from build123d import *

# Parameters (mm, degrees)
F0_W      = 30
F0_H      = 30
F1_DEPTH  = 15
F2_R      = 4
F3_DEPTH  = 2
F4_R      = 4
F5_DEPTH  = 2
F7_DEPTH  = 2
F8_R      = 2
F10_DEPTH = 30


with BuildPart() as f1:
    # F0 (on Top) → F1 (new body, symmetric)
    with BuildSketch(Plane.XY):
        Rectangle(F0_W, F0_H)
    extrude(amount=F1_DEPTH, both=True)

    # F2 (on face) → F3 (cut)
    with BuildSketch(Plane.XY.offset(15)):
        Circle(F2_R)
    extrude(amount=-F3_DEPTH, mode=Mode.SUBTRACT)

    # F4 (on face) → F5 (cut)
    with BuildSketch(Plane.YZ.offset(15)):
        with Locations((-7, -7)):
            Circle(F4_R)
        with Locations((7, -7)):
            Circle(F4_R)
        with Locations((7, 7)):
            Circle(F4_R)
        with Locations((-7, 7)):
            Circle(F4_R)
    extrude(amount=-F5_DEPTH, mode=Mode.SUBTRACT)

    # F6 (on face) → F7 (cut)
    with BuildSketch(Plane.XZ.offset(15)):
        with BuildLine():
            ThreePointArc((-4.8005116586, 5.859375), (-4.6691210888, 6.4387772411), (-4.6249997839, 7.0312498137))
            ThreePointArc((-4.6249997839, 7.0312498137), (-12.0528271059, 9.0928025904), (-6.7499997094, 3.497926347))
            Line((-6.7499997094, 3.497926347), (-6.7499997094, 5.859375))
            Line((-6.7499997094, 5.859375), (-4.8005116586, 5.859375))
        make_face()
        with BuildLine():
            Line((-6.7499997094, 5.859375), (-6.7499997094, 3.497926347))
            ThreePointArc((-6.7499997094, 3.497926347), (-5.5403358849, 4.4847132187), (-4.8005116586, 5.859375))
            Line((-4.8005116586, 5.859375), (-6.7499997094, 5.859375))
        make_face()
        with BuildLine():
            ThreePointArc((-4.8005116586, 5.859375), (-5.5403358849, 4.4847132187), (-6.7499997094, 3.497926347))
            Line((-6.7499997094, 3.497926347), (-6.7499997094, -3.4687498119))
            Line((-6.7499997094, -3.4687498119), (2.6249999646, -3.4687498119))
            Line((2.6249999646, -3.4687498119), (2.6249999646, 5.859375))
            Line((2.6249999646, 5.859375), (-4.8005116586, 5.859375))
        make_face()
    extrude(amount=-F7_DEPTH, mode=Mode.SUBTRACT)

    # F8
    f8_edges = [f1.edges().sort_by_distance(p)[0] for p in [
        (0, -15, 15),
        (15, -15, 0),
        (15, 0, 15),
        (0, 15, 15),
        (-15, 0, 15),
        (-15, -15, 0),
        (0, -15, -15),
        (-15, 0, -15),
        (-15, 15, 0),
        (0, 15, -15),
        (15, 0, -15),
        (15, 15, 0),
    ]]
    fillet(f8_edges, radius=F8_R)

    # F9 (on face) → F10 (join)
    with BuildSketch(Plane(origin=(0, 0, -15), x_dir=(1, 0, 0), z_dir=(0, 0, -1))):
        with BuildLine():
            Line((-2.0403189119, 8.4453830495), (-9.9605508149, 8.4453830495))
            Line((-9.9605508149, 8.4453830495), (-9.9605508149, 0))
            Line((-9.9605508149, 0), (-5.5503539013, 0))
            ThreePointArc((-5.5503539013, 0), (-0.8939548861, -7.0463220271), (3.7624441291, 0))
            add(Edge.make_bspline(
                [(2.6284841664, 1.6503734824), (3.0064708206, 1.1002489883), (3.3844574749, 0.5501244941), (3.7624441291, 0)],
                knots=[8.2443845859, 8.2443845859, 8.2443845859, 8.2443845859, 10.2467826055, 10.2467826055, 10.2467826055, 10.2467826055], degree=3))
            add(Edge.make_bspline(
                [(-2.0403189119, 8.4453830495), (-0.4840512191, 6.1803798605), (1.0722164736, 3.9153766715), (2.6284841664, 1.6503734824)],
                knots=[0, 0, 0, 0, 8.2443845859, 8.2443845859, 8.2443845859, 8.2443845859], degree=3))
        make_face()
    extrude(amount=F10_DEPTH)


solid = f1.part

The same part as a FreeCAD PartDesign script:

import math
import FreeCAD as App
import Part
import Sketcher

V = App.Vector


def edges_at(feature, points):
    """Names of the edges that pass closest to the given points."""
    edges = feature.Shape.Edges
    near = lambda p: min(range(len(edges)), key=lambda i: edges[i].distToShape(Part.Vertex(*p))[0])
    return sorted({f"Edge{near(p) + 1}" for p in points})


def add_polygon(sketch, points):
    """Adds a closed chain of lines whose ends are joined by coincident constraints."""
    first, n = sketch.GeometryCount, len(points)
    for a, b in zip(points, points[1:] + points[:1]):
        sketch.addGeometry(Part.LineSegment(App.Vector(*a, 0), App.Vector(*b, 0)), False)
    for i in range(n):
        sketch.addConstraint(Sketcher.Constraint("Coincident", first + i, 2, first + (i + 1) % n, 1))

doc = App.newDocument("Part")
body = doc.addObject("PartDesign::Body", "Body")

# Sketch on XY plane
sketch1 = doc.addObject("Sketcher::SketchObject", "Sketch")
body.addObject(sketch1)
sketch1.AttachmentSupport = (doc.XY_Plane, [""])
sketch1.MapMode = "FlatFace"
add_polygon(sketch1, [(-15, 15), (-15, -15), (15, -15), (15, 15)])  # lines 0-3
sketch1.addConstraint([
    Sketcher.Constraint("Vertical", 0),
    Sketcher.Constraint("Horizontal", 1),
    Sketcher.Constraint("Vertical", 2),
    Sketcher.Constraint("Horizontal", 3),
    Sketcher.Constraint("Symmetric", 0, 2, 2, 2, -1, 1),
    Sketcher.Constraint("Equal", 3, 0),
    Sketcher.Constraint("DistanceX", 1, 1, 1, 2, 30.0),
])
pad1 = doc.addObject("PartDesign::Pad", "Pad")
body.addObject(pad1)
pad1.Profile = sketch1
pad1.Length = 30
pad1.Midplane = True

# Sketch on XY plane
sketch2 = doc.addObject("Sketcher::SketchObject", "Sketch001")
body.addObject(sketch2)
sketch2.AttachmentSupport = (doc.XY_Plane, [""])
sketch2.MapMode = "FlatFace"
sketch2.AttachmentOffset = App.Placement(V(0, 0, 15), App.Rotation())
sketch2.addGeometry(Part.Circle(V(0, 0, 0), V(0, 0, 1), 4), False)
sketch2.addConstraint([
    Sketcher.Constraint("Coincident", 0, 3, -1, 1),
    Sketcher.Constraint("Diameter", 0, 8.0),
])
pocket1 = doc.addObject("PartDesign::Pocket", "Pocket")
body.addObject(pocket1)
pocket1.Profile = sketch2
pocket1.Length = 2

# Sketch on YZ plane
sketch3 = doc.addObject("Sketcher::SketchObject", "Sketch002")
body.addObject(sketch3)
sketch3.AttachmentSupport = (doc.YZ_Plane, [""])
sketch3.MapMode = "FlatFace"
sketch3.AttachmentOffset = App.Placement(V(0, 0, 15), App.Rotation())
sketch3.addGeometry([
    Part.Circle(V(-7, -7, 0), V(0, 0, 1), 4),
    Part.Circle(V(7, -7, 0), V(0, 0, 1), 4),
    Part.Circle(V(7, 7, 0), V(0, 0, 1), 4),
    Part.Circle(V(-7, 7, 0), V(0, 0, 1), 4),
], False)
sketch3.addConstraint([
    Sketcher.Constraint("Equal", 0, 1),
    Sketcher.Constraint("Equal", 1, 2),
    Sketcher.Constraint("Equal", 2, 3),
    Sketcher.Constraint("Symmetric", 0, 3, 2, 3, -1, 1),
    Sketcher.Constraint("Symmetric", 1, 3, 3, 3, -1, 1),
    Sketcher.Constraint("Symmetric", 0, 3, 1, 3, -2),
    Sketcher.Constraint("Diameter", 0, 8.0),
    Sketcher.Constraint("DistanceX", 0, 3, -1, 1, 7.0),
    Sketcher.Constraint("DistanceY", 0, 3, -1, 1, 7.0),
])
pocket2 = doc.addObject("PartDesign::Pocket", "Pocket001")
body.addObject(pocket2)
pocket2.Profile = sketch3
pocket2.Length = 2

# Sketch on XZ plane
sketch4 = doc.addObject("Sketcher::SketchObject", "Sketch003")
body.addObject(sketch4)
sketch4.AttachmentSupport = (doc.XZ_Plane, [""])
sketch4.MapMode = "FlatFace"
sketch4.AttachmentOffset = App.Placement(V(0, 0, 15), App.Rotation())
sketch4.addGeometry([
    Part.ArcOfCircle(Part.Circle(V(-8.6, 7, 0), V(0, 0, 1), 4), math.radians(-17.04), math.radians(0)),  # 0
    Part.ArcOfCircle(Part.Circle(V(-8.6, 7, 0), V(0, 0, 1), 4), math.radians(0), math.radians(298)),  # 1
    Part.LineSegment(V(-6.7, 3.5, 0), V(-6.7, -3.5, 0)),  # 2
    Part.LineSegment(V(-6.7, -3.5, 0), V(2.6, -3.5, 0)),  # 3
    Part.LineSegment(V(2.6, -3.5, 0), V(2.6, 5.9, 0)),  # 4
    Part.LineSegment(V(2.6, 5.9, 0), V(-4.8, 5.9, 0)),  # 5
], False)
sketch4.addConstraint([
    Sketcher.Constraint("Tangent", 0, 2, 1, 1),
    Sketcher.Constraint("Coincident", 1, 2, 2, 1),
    Sketcher.Constraint("Coincident", 2, 2, 3, 1),
    Sketcher.Constraint("Coincident", 3, 2, 4, 1),
    Sketcher.Constraint("Coincident", 4, 2, 5, 1),
    Sketcher.Constraint("Coincident", 5, 2, 0, 1),
    Sketcher.Constraint("Vertical", 2),
    Sketcher.Constraint("Horizontal", 3),
    Sketcher.Constraint("Vertical", 4),
    Sketcher.Constraint("Horizontal", 5),
    Sketcher.Constraint("Equal", 0, 1),
    Sketcher.Constraint("Horizontal", 1, 3, 0, 2),
    Sketcher.Constraint("Radius", 0, 4.0),
    Sketcher.Constraint("DistanceY", 2, 2, 1, 3, 10.5),
    Sketcher.Constraint("DistanceX", 3, 1, 3, 2, 9.375),
    Sketcher.Constraint("DistanceX", 1, 2, -1, 1, 6.75),
    Sketcher.Constraint("DistanceX", 0, 2, 3, 2, 7.25),
    Sketcher.Constraint("DistanceX", 5, 2, 5, 1, 7.425512),
    Sketcher.Constraint("DistanceY", -1, 1, 0, 3, 7.03125),
])
pocket3 = doc.addObject("PartDesign::Pocket", "Pocket002")
body.addObject(pocket3)
pocket3.Profile = sketch4
pocket3.Length = 2
doc.recompute()

fillet = doc.addObject("PartDesign::Fillet", "Fillet")
body.addObject(fillet)
fillet.Base = (pocket3, edges_at(pocket3, [
    (0, -15, 15),
    (15, -15, 0),
    (15, 0, 15),
    (0, 15, 15),
    (-15, 0, 15),
    (-15, -15, 0),
    (0, -15, -15),
    (-15, 0, -15),
    (-15, 15, 0),
    (0, 15, -15),
    (15, 0, -15),
    (15, 15, 0),
]))
fillet.Radius = 2

# Sketch on XY plane
sketch5 = doc.addObject("Sketcher::SketchObject", "Sketch004")
body.addObject(sketch5)
sketch5.AttachmentSupport = (doc.XY_Plane, [""])
sketch5.MapMode = "FlatFace"
sketch5.AttachmentOffset = App.Placement(V(0, 0, -15), App.Rotation())
sketch5.addGeometry([
    Part.LineSegment(V(-2.040319, -8.445383, 0), V(-9.960551, -8.445383, 0)),  # 0
    Part.LineSegment(V(-9.960551, -8.445383, 0), V(-9.960551, 0, 0)),  # 1
    Part.LineSegment(V(-9.960551, 0, 0), V(-5.550354, 0, 0)),  # 2
    Part.ArcOfCircle(Part.Circle(V(-0.893955, 1.984624, 0), V(0, 0, 1), 5.061698), math.radians(-23.0844), math.radians(203.0844)),  # 3
    Part.BSplineCurve([V(2.628484, -1.650373, 0), V(3.006471, -1.100249, 0), V(3.384457, -0.550124, 0), V(3.762444, 0, 0)], [4, 4], [8.244384586, 10.246782605], False, 3, [1, 1, 1, 1], False),  # 4
    Part.BSplineCurve([V(-2.040319, -8.445383, 0), V(-0.484051, -6.18038, 0), V(1.072216, -3.915377, 0), V(2.628484, -1.650373, 0)], [4, 4], [0, 8.244384586], False, 3, [1, 1, 1, 1], False),  # 5
], False)
sketch5.addConstraint([
    Sketcher.Constraint("Block", 4),
    Sketcher.Constraint("Block", 5),
    Sketcher.Constraint("Coincident", 0, 2, 1, 1),
    Sketcher.Constraint("Coincident", 1, 2, 2, 1),
    Sketcher.Constraint("Coincident", 2, 2, 3, 2),
    Sketcher.Constraint("Coincident", 3, 1, 4, 2),
    Sketcher.Constraint("Coincident", 5, 1, 0, 1),
    Sketcher.Constraint("Horizontal", 0),
    Sketcher.Constraint("Vertical", 1),
    Sketcher.Constraint("Horizontal", 2),
    Sketcher.Constraint("PointOnObject", 1, 2, -1),
    Sketcher.Constraint("Radius", 3, 5.061698),
    Sketcher.Constraint("DistanceX", 0, 2, 0, 1, 7.920232),
    Sketcher.Constraint("DistanceX", 2, 2, 3, 3, 4.656399),
])
pad2 = doc.addObject("PartDesign::Pad", "Pad001")
body.addObject(pad2)
pad2.Profile = sketch5
pad2.Length = 30
pad2.Reversed = True

doc.recompute()
